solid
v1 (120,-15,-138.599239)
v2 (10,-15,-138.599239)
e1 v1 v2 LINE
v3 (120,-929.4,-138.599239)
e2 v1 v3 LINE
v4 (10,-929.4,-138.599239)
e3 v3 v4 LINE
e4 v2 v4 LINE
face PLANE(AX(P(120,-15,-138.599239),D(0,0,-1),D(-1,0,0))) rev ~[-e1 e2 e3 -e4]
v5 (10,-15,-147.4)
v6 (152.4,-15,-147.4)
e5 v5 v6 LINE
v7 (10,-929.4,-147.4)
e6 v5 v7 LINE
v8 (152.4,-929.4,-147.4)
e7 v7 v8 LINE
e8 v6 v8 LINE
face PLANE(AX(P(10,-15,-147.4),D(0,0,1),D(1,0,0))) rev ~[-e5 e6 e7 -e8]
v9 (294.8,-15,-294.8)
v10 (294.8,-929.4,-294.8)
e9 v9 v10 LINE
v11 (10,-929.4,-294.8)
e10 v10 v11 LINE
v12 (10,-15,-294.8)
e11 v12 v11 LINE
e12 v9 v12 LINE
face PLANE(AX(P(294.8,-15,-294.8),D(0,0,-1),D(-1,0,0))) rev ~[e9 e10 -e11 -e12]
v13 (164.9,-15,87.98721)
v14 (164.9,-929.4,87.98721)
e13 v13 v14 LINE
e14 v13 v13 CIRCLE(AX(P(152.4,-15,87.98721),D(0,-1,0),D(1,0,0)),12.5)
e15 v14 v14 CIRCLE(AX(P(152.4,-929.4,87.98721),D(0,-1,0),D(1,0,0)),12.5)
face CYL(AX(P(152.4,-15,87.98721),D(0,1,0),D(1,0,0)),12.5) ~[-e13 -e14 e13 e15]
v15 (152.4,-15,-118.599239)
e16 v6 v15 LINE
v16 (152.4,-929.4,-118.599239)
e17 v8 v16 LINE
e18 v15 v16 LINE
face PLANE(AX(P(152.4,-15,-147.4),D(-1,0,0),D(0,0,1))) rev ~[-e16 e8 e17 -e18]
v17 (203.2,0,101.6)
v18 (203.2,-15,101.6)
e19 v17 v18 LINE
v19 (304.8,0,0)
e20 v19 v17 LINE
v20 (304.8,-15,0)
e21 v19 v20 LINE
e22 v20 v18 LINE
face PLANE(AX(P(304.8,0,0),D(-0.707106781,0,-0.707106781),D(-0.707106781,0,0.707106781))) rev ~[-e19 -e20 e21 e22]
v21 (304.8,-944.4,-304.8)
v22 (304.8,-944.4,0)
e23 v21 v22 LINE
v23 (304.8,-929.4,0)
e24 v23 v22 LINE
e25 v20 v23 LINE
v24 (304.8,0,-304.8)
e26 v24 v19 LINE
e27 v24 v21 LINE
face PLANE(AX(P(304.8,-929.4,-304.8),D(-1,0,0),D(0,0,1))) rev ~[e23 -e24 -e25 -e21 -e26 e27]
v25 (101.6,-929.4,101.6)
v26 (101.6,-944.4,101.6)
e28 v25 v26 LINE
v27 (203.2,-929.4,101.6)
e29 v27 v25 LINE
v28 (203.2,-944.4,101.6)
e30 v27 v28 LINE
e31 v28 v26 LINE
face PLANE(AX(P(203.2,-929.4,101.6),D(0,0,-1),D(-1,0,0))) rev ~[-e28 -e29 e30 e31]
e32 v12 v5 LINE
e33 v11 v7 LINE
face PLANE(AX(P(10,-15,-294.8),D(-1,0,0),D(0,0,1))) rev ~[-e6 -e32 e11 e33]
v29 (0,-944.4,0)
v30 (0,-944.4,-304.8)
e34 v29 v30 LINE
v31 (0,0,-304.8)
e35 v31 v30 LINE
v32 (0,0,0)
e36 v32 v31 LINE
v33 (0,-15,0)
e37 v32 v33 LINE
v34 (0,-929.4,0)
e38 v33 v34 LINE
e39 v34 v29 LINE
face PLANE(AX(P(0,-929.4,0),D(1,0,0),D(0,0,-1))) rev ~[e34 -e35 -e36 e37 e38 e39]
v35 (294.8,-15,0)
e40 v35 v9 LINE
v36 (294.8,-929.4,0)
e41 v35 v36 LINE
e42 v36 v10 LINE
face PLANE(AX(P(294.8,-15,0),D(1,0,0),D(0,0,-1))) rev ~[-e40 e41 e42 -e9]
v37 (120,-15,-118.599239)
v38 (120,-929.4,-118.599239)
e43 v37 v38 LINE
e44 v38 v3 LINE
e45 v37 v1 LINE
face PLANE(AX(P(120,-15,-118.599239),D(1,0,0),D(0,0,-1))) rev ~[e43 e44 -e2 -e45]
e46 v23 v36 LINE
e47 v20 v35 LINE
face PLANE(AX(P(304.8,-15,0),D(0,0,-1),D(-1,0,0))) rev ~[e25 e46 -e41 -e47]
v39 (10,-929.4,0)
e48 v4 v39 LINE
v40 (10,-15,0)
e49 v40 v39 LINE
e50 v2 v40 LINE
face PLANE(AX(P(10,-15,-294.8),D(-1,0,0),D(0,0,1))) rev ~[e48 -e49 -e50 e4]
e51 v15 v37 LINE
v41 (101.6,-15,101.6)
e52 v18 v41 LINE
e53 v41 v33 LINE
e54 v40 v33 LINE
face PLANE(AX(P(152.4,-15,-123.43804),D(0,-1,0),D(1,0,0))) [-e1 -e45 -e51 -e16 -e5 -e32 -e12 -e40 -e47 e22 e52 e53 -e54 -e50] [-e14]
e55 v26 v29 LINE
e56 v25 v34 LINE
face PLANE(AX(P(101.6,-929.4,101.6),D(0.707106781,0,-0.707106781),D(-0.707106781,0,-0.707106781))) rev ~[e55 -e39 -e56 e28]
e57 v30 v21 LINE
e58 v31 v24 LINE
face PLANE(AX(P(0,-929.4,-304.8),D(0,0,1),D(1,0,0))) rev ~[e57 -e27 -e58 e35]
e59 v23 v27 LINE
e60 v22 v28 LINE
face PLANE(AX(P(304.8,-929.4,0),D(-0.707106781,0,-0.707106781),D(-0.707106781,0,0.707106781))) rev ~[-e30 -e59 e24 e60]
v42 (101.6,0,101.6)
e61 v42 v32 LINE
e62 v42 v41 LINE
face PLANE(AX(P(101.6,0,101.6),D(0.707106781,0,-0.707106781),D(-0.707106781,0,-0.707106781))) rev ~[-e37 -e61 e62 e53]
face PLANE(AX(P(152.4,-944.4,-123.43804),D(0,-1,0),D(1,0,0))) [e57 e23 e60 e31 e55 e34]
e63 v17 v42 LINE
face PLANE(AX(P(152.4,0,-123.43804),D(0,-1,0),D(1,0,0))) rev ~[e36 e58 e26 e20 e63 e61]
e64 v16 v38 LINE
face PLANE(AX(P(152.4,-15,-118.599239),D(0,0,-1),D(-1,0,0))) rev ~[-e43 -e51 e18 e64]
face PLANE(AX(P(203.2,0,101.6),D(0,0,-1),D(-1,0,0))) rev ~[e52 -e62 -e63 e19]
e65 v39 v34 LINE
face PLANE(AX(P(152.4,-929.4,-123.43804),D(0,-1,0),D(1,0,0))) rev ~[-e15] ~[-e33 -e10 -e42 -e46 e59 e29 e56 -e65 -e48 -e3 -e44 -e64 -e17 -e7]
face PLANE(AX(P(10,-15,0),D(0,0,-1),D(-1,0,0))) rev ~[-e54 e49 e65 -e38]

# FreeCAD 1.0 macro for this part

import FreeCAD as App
import Part
import Sketcher

V = App.Vector


def add_polygon(sketch, points):
    """Adds a closed chain of lines whose ends are joined by coincident constraints."""
    first, n = sketch.GeometryCount, len(points)
    for a, b in zip(points, points[1:] + points[:1]):
        sketch.addGeometry(Part.LineSegment(App.Vector(*a, 0), App.Vector(*b, 0)), False)
    for i in range(n):
        sketch.addConstraint(Sketcher.Constraint("Coincident", first + i, 2, first + (i + 1) % n, 1))

doc = App.newDocument("Part")
body = doc.addObject("PartDesign::Body", "Body")

sketch1 = doc.addObject("Sketcher::SketchObject", "Sketch")
body.addObject(sketch1)
sketch1.AttachmentSupport = (doc.XZ_Plane, [""])
sketch1.MapMode = "FlatFace"
add_polygon(sketch1, [(101.6, 101.6), (0, 0), (0, -304.8), (304.8, -304.8), (304.8, 0), (203.2, 101.6)])
sketch1.addConstraint([
    Sketcher.Constraint("Vertical", 1),
    Sketcher.Constraint("Horizontal", 2),
    Sketcher.Constraint("Vertical", 3),
    Sketcher.Constraint("Horizontal", 5),
    Sketcher.Constraint("Coincident", 0, 2, -1, 1),
    Sketcher.Constraint("PointOnObject", 3, 2, -1),
    Sketcher.Constraint("Perpendicular", 0, 4),
    Sketcher.Constraint("Equal", 2, 1),
    Sketcher.Constraint("Equal", 0, 4),
    Sketcher.Constraint("DistanceX", 2, 1, 2, 2, 304.8),
    Sketcher.Constraint("DistanceX", 5, 2, 5, 1, 101.6),
])
pad1 = doc.addObject("PartDesign::Pad", "Pad")
body.addObject(pad1)
pad1.Profile = sketch1
pad1.Length = 15

sketch2 = doc.addObject("Sketcher::SketchObject", "Sketch001")
body.addObject(sketch2)
sketch2.AttachmentSupport = (doc.XZ_Plane, [""])
sketch2.MapMode = "FlatFace"
sketch2.AttachmentOffset = App.Placement(V(0, 0, 15), App.Rotation())
sketch2.addGeometry(Part.Circle(V(152.4, 87.98721, 0), V(0, 0, 1), 12.5), False)
sketch2.addConstraint([
    Sketcher.Constraint("Diameter", 0, 25.0),
    Sketcher.Constraint("DistanceX", -1, 1, 0, 3, 152.4),
    Sketcher.Constraint("DistanceY", -1, 1, 0, 3, 87.98721),
])
pad2 = doc.addObject("PartDesign::Pad", "Pad001")
body.addObject(pad2)
pad2.Profile = sketch2
pad2.Length = 914.4

sketch3 = doc.addObject("Sketcher::SketchObject", "Sketch002")
body.addObject(sketch3)
sketch3.AttachmentSupport = (doc.XZ_Plane, [""])
sketch3.MapMode = "FlatFace"
sketch3.AttachmentOffset = App.Placement(V(0, 0, 15), App.Rotation())
add_polygon(sketch3, [(294.8, 0), (294.8, -294.8), (10, -294.8), (10, 0), (0, 0), (0, -304.8), (304.8, -304.8), (304.8, 0)])
sketch3.addConstraint([
    Sketcher.Constraint("Vertical", 0),
    Sketcher.Constraint("Horizontal", 1),
    Sketcher.Constraint("Vertical", 2),
    Sketcher.Constraint("Horizontal", 3),
    Sketcher.Constraint("Vertical", 4),
    Sketcher.Constraint("Horizontal", 5),
    Sketcher.Constraint("Vertical", 6),
    Sketcher.Constraint("Horizontal", 7),
    Sketcher.Constraint("Coincident", 3, 2, -1, 1),
    Sketcher.Constraint("PointOnObject", 6, 2, -1),
    Sketcher.Constraint("Equal", 3, 7),
    Sketcher.Constraint("Equal", 5, 4),
    Sketcher.Constraint("DistanceX", 3, 2, 3, 1, 10.0),
    Sketcher.Constraint("DistanceX", 1, 2, 1, 1, 284.8),
    Sketcher.Constraint("DistanceY", 0, 2, 0, 1, 294.8),
])
pad3 = doc.addObject("PartDesign::Pad", "Pad002")
body.addObject(pad3)
pad3.Profile = sketch3
pad3.Length = 914.4

sketch4 = doc.addObject("Sketcher::SketchObject", "Sketch003")
body.addObject(sketch4)
sketch4.AttachmentSupport = (doc.XZ_Plane, [""])
sketch4.MapMode = "FlatFace"
sketch4.AttachmentOffset = App.Placement(V(0, 0, 929.4), App.Rotation())
add_polygon(sketch4, [(0, 0), (0, -304.8), (304.8, -304.8), (304.8, 0), (203.2, 101.6), (101.6, 101.6)])
sketch4.addConstraint([
    Sketcher.Constraint("Vertical", 0),
    Sketcher.Constraint("Horizontal", 1),
    Sketcher.Constraint("Vertical", 2),
    Sketcher.Constraint("Horizontal", 4),
    Sketcher.Constraint("Coincident", 5, 2, -1, 1),
    Sketcher.Constraint("PointOnObject", 2, 2, -1),
    Sketcher.Constraint("Perpendicular", 3, 5),
    Sketcher.Constraint("Equal", 1, 0),
    Sketcher.Constraint("Equal", 3, 5),
    Sketcher.Constraint("DistanceX", 1, 1, 1, 2, 304.8),
    Sketcher.Constraint("DistanceX", 4, 2, 4, 1, 101.6),
])
pad4 = doc.addObject("PartDesign::Pad", "Pad003")
body.addObject(pad4)
pad4.Profile = sketch4
pad4.Length = 15

sketch5 = doc.addObject("Sketcher::SketchObject", "Sketch004")
body.addObject(sketch5)
sketch5.AttachmentSupport = (doc.XZ_Plane, [""])
sketch5.MapMode = "FlatFace"
sketch5.AttachmentOffset = App.Placement(V(0, 0, 15), App.Rotation())
add_polygon(sketch5, [(10, -147.4), (152.4, -147.4), (152.4, -118.599239), (120, -118.599239), (120, -138.599239), (10, -138.599239)])
sketch5.addConstraint([
    Sketcher.Constraint("Horizontal", 0),
    Sketcher.Constraint("Vertical", 1),
    Sketcher.Constraint("Horizontal", 2),
    Sketcher.Constraint("Vertical", 3),
    Sketcher.Constraint("Horizontal", 4),
    Sketcher.Constraint("Vertical", 5),
    Sketcher.Constraint("DistanceX", 4, 2, 4, 1, 110.0),
    Sketcher.Constraint("DistanceY", 3, 2, 3, 1, 20.0),
    Sketcher.Constraint("DistanceX", 0, 1, 0, 2, 142.4),
    Sketcher.Constraint("DistanceX", -1, 1, 2, 2, 120.0),
    Sketcher.Constraint("DistanceY", 0, 2, -1, 1, 147.4),
    Sketcher.Constraint("DistanceY", 1, 1, 1, 2, 28.800761),
])
pad5 = doc.addObject("PartDesign::Pad", "Pad004")
body.addObject(pad5)
pad5.Profile = sketch5
pad5.Length = 914.4

doc.recompute()
